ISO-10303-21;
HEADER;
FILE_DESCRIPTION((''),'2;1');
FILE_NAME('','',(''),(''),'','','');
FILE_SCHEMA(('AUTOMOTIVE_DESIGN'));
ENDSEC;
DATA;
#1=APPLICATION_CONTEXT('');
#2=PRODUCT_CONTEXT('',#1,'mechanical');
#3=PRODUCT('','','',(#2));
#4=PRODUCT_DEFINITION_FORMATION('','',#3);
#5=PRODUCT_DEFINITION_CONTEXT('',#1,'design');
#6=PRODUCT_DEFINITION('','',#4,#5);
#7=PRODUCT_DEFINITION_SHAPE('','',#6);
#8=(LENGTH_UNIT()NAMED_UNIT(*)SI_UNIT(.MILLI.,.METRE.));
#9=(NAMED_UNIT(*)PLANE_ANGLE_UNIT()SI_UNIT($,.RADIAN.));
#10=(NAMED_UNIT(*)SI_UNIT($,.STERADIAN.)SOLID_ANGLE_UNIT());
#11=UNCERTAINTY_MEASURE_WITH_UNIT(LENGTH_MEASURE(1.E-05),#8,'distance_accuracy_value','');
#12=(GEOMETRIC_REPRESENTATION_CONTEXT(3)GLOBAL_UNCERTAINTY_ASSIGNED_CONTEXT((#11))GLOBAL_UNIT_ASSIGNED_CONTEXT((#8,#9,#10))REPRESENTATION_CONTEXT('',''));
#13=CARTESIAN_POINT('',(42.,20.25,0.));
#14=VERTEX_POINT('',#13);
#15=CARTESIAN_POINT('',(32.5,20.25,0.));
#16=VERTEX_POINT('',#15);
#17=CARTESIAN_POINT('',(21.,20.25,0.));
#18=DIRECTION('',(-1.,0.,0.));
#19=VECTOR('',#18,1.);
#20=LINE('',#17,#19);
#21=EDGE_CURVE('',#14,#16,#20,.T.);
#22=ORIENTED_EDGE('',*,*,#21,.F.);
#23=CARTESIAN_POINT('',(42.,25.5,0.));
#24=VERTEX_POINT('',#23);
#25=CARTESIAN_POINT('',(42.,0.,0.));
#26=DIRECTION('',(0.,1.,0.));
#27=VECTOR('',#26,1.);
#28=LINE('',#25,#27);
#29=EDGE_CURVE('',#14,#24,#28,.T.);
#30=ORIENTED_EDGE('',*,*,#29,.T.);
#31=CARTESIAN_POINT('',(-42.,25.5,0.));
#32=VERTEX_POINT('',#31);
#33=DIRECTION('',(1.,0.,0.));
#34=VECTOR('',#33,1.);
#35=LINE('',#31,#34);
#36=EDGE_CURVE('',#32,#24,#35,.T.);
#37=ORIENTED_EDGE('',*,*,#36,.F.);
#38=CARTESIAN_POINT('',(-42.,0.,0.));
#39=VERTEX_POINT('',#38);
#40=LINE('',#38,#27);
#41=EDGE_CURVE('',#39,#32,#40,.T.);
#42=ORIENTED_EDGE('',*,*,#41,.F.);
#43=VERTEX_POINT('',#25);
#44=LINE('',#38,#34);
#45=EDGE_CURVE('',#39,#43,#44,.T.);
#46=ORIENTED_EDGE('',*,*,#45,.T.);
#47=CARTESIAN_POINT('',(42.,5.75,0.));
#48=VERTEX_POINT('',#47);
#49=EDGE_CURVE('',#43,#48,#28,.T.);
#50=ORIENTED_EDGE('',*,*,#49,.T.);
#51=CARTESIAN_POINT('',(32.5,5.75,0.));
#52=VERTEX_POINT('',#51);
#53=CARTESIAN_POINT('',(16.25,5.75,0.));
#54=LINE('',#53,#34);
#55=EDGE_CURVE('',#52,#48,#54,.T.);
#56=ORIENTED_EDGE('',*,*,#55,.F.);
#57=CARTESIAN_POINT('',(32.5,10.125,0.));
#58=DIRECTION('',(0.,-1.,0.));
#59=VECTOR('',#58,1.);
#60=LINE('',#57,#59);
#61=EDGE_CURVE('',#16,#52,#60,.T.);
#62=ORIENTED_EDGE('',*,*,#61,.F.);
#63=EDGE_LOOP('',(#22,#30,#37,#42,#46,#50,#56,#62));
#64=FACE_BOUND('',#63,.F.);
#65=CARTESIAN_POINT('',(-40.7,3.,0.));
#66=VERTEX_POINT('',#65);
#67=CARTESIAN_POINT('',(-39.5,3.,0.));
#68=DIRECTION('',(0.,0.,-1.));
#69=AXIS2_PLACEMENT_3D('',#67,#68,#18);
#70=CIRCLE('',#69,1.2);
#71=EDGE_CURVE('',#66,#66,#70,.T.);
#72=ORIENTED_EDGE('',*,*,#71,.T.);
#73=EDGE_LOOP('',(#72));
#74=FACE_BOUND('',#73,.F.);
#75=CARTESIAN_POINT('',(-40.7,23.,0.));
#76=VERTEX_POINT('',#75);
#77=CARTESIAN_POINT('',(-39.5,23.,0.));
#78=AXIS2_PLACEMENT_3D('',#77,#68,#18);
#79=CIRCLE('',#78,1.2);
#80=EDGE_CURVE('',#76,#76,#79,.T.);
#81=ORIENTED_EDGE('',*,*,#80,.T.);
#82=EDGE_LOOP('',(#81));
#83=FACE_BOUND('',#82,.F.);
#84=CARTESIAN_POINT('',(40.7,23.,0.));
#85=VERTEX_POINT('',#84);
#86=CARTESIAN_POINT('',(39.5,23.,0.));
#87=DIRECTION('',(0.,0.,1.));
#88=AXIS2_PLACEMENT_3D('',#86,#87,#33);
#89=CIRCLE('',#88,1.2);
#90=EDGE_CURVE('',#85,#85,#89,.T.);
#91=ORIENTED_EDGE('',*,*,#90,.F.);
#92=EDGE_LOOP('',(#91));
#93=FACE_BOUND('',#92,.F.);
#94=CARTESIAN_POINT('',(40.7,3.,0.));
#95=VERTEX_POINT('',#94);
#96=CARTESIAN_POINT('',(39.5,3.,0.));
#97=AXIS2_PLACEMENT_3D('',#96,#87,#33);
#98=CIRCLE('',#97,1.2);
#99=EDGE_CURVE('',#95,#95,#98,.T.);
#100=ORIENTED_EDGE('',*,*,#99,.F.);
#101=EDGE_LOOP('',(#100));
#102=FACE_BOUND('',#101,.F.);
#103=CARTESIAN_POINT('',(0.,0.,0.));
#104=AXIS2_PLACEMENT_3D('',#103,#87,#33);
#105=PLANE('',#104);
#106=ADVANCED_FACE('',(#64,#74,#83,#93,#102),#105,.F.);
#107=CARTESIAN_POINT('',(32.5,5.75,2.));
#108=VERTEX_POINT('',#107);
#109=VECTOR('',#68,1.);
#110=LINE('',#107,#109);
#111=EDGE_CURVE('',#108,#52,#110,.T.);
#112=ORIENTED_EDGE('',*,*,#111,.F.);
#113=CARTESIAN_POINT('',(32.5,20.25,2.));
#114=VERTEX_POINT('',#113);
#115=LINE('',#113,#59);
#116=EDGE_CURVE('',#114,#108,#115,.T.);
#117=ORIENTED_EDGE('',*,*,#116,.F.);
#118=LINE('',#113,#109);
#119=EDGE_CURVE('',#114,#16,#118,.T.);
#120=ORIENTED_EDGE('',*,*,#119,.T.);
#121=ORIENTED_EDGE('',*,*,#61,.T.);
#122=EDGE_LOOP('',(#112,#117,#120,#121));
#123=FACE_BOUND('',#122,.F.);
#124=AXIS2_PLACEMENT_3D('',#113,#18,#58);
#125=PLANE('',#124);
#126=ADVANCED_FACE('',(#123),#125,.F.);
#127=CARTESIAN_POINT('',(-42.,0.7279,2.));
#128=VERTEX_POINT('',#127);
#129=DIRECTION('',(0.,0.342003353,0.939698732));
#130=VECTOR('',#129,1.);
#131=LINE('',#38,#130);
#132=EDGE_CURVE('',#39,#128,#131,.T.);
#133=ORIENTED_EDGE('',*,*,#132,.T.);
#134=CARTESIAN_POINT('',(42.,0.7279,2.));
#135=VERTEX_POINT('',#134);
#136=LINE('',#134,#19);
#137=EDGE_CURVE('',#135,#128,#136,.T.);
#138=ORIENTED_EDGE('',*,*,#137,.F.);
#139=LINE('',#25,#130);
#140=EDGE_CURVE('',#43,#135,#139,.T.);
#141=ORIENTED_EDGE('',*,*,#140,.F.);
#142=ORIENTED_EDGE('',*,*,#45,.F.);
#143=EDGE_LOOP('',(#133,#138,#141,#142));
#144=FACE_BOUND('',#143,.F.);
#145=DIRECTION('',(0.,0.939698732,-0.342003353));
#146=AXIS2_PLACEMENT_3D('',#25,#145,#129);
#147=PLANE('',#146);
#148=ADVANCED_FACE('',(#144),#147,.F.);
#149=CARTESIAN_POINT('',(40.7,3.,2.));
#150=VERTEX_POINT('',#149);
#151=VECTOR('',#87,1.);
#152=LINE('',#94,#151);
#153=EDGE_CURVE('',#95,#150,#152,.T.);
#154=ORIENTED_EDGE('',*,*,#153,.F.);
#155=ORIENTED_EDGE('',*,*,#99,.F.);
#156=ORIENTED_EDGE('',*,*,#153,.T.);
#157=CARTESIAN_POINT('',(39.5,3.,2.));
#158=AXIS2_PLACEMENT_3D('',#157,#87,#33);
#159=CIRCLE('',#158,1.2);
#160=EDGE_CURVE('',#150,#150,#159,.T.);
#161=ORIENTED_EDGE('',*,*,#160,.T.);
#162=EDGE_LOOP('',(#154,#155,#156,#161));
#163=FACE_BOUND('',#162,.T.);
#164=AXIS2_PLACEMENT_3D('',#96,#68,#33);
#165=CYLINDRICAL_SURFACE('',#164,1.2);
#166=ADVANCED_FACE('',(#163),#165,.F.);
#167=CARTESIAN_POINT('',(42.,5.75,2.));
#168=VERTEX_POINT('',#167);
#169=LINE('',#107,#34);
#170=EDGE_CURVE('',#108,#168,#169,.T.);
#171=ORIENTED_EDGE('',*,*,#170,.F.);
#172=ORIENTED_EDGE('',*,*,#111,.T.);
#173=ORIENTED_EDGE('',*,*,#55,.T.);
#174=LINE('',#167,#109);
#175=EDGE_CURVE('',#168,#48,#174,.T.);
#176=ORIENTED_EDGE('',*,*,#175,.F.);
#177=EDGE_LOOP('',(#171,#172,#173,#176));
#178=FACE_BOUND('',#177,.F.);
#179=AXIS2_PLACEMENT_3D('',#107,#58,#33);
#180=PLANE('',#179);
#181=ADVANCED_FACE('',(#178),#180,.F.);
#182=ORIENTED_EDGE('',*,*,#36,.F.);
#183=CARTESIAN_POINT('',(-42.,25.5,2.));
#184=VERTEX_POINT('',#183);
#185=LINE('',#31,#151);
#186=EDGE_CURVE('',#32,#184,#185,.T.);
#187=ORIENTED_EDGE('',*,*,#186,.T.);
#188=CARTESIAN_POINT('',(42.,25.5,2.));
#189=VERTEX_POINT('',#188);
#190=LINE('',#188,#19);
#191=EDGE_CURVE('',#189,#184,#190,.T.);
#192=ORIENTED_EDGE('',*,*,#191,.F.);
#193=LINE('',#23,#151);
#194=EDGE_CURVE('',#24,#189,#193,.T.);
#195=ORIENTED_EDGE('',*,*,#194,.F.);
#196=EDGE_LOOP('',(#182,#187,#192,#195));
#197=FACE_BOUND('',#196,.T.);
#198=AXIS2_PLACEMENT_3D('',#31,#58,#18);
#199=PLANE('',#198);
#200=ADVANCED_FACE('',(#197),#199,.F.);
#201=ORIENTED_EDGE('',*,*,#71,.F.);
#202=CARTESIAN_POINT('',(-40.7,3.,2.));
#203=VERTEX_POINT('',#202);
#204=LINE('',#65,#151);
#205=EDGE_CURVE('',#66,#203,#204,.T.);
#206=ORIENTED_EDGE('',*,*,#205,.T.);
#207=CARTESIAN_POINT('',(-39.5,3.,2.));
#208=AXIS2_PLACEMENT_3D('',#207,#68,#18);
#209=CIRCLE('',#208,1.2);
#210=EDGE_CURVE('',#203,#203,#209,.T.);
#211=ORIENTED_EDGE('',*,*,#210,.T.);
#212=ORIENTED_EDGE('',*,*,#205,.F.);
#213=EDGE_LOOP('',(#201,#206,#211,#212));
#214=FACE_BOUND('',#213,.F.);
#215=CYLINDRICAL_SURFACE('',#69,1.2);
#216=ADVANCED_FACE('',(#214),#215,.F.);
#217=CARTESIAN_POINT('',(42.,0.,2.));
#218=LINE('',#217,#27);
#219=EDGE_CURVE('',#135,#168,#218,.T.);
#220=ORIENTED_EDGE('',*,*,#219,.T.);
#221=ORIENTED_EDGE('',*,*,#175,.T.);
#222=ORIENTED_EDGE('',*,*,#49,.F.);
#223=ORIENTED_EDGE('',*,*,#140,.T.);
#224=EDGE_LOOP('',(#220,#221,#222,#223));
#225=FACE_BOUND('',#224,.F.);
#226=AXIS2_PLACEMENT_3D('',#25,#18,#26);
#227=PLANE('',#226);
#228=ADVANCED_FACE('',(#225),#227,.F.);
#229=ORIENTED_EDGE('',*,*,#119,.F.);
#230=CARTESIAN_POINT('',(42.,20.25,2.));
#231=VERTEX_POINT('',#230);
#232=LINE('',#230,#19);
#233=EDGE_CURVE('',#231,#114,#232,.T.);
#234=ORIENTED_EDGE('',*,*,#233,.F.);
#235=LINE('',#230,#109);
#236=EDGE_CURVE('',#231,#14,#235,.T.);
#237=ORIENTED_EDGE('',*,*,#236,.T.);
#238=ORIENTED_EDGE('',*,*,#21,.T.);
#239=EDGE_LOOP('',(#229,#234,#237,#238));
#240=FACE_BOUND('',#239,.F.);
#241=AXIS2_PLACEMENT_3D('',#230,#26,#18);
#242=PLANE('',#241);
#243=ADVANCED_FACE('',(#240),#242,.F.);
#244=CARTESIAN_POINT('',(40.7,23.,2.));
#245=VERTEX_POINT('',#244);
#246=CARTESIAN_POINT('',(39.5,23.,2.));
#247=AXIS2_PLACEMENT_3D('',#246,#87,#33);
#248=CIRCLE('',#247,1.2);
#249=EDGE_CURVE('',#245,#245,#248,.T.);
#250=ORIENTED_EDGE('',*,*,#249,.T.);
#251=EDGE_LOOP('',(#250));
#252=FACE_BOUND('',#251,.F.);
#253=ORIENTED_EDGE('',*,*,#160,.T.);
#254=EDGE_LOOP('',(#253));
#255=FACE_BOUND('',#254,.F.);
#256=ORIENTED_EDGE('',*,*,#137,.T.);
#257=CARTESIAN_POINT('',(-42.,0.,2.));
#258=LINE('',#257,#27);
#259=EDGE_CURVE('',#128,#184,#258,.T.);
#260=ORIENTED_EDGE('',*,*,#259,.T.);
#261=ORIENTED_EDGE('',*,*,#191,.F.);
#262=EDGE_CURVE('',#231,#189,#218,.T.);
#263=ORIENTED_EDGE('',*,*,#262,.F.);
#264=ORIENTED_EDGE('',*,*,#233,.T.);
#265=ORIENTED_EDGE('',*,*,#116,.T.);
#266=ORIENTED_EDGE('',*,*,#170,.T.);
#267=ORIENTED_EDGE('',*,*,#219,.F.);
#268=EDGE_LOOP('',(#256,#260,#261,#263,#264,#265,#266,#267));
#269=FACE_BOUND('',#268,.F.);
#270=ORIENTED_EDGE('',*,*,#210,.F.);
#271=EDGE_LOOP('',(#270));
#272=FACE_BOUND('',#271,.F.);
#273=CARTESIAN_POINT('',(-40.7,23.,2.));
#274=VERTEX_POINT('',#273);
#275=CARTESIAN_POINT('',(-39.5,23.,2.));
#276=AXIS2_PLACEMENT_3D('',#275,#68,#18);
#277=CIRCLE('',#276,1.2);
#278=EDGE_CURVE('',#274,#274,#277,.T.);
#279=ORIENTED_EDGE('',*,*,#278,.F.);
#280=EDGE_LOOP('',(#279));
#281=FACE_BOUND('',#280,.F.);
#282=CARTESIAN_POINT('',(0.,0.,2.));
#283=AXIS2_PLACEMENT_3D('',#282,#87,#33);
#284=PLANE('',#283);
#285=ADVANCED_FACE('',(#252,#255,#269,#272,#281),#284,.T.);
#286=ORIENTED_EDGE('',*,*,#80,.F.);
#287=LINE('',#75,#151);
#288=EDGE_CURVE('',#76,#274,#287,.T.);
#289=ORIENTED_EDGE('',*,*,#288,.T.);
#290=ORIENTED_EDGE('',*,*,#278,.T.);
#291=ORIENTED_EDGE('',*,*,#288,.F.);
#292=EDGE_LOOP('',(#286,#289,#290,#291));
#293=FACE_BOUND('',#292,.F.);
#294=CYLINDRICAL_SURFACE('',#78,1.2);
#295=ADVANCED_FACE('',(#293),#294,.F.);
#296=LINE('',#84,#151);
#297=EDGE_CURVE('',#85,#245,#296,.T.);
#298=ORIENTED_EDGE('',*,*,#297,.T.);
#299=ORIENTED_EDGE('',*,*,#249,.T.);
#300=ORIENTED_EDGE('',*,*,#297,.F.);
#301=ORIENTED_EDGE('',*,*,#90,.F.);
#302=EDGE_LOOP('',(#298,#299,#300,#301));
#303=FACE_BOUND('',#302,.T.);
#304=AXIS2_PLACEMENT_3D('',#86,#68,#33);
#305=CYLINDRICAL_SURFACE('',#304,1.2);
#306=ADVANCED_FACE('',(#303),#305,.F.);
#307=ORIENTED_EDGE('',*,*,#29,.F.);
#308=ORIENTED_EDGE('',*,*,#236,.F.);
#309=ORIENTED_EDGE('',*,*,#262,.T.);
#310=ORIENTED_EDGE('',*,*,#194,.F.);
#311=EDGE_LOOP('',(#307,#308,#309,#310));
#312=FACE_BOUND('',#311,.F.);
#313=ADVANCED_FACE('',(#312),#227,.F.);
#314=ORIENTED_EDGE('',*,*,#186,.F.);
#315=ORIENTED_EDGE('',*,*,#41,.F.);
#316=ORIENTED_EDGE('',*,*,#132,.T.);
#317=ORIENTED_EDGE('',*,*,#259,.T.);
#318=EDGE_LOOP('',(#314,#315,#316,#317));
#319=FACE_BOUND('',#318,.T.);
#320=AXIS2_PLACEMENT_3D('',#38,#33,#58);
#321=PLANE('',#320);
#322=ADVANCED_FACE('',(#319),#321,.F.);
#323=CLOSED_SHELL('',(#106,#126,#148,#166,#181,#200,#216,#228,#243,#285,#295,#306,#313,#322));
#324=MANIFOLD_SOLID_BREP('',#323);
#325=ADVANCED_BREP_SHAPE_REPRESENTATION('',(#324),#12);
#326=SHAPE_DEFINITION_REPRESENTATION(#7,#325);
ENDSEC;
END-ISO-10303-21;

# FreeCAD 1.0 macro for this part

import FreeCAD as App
import Part
import Sketcher
Q = App.Units.Quantity

doc = App.newDocument("Part")
params = doc.addObject("Spreadsheet::Sheet", "Params")
for row, (alias, value) in enumerate([
    ("sketch1_diameter", "2.4 mm"),
    ("sketch1_width", "42 mm"),
    ("sketch1_height", "25.5 mm"),
    ("pad1_length", "2 mm"),
    ("sketch2_height", "2 mm"),
    ("pocket1_length", "90 mm"),
    ("sketch3_width", "9.5 mm"),
    ("sketch3_height", "14.5 mm"),
    ("pocket2_length", "10 mm"),
], start=1):
    params.set(f"A{row}", alias)
    params.set(f"B{row}", "=" + value)
    params.setAlias(f"B{row}", alias)

body = doc.addObject("PartDesign::Body", "Body")

sketch1 = body.newObject("Sketcher::SketchObject", "Sketch")
sketch1.AttachmentSupport = (doc.getObject("XY_Plane"), [""])
sketch1.MapMode = "FlatFace"
sketch1.addGeometry([
    Part.LineSegment(App.Vector(0, 25.5, 0), App.Vector(0, 0, 0)),
    Part.LineSegment(App.Vector(0, 0, 0), App.Vector(42, 0, 0)),
    Part.LineSegment(App.Vector(42, 0, 0), App.Vector(42, 25.5, 0)),
    Part.LineSegment(App.Vector(42, 25.5, 0), App.Vector(0, 25.5, 0)),
    Part.Circle(App.Vector(39.5, 3, 0), App.Vector(0, 0, 1), 1.2),
    Part.Circle(App.Vector(39.5, 23, 0), App.Vector(0, 0, 1), 1.2),
], False)
sketch1.addConstraint([
    Sketcher.Constraint("Coincident", 0, 2, 1, 1),
    Sketcher.Constraint("Coincident", 1, 2, 2, 1),
    Sketcher.Constraint("Coincident", 2, 2, 3, 1),
    Sketcher.Constraint("Coincident", 3, 2, 0, 1),
    Sketcher.Constraint("Vertical", 0),
    Sketcher.Constraint("Horizontal", 1),
    Sketcher.Constraint("Vertical", 2),
    Sketcher.Constraint("Horizontal", 3),
    Sketcher.Constraint("Coincident", 0, 2, -1, 1),
    Sketcher.Constraint("Equal", 4, 5),
    Sketcher.Constraint("Vertical", 4, 3, 5, 3),
    Sketcher.Constraint("Diameter", 4, Q("2.4 mm")),
    Sketcher.Constraint("DistanceX", 1, 1, 1, 2, Q("42 mm")),
    Sketcher.Constraint("DistanceY", 0, 2, 0, 1, Q("25.5 mm")),
    Sketcher.Constraint("DistanceY", 4, 3, 5, 3, Q("20 mm")),
    Sketcher.Constraint("DistanceX", 4, 3, 1, 2, Q("2.5 mm")),
    Sketcher.Constraint("DistanceY", 5, 3, 2, 2, Q("2.5 mm")),
])
sketch1.setExpression("Constraints[11]", "Params.sketch1_diameter")
sketch1.setExpression("Constraints[12]", "Params.sketch1_width")
sketch1.setExpression("Constraints[13]", "Params.sketch1_height")
pad1 = body.newObject("PartDesign::Pad", "Pad")
pad1.Profile = sketch1
pad1.setExpression("Length", "Params.pad1_length")

sketch2 = body.newObject("Sketcher::SketchObject", "Sketch001")
sketch2.AttachmentSupport = (doc.getObject("YZ_Plane"), [""])
sketch2.MapMode = "FlatFace"
sketch2.AttachmentOffset = App.Placement(App.Vector(0, 0, 42), App.Rotation())
sketch2.addGeometry([
    Part.LineSegment(App.Vector(0, 2, 0), App.Vector(0, 0, 0)),
    Part.LineSegment(App.Vector(0, 0, 0), App.Vector(0.7, 2, 0)),
    Part.LineSegment(App.Vector(0.7, 2, 0), App.Vector(0, 2, 0)),
], False)
sketch2.addConstraint([
    Sketcher.Constraint("Coincident", 0, 2, 1, 1),
    Sketcher.Constraint("Coincident", 1, 2, 2, 1),
    Sketcher.Constraint("Coincident", 2, 2, 0, 1),
    Sketcher.Constraint("Vertical", 0),
    Sketcher.Constraint("Horizontal", 2),
    Sketcher.Constraint("Coincident", 0, 2, -1, 1),
    Sketcher.Constraint("DistanceY", 0, 2, 0, 1, Q("2 mm")),
    Sketcher.Constraint("Angle", 1, Q("70.001 deg")),
])
sketch2.setExpression("Constraints[6]", "Params.sketch2_height")
pocket1 = body.newObject("PartDesign::Pocket", "Pocket")
pocket1.Profile = sketch2
pocket1.setExpression("Length", "Params.pocket1_length")
doc.recompute()

mirrored = body.newObject("PartDesign::Mirrored", "Mirrored")
mirrored.Originals = [pad1, pocket1]
mirrored.MirrorPlane = (doc.getObject("YZ_Plane"), [""])
body.Tip = mirrored

sketch3 = body.newObject("Sketcher::SketchObject", "Sketch002")
sketch3.AttachmentSupport = (doc.getObject("XY_Plane"), [""])
sketch3.MapMode = "FlatFace"
sketch3.AttachmentOffset = App.Placement(App.Vector(0, 0, 2), App.Rotation())
sketch3.addGeometry([
    Part.LineSegment(App.Vector(32, 6, 0), App.Vector(42, 6, 0)),
    Part.LineSegment(App.Vector(42, 6, 0), App.Vector(42, 20, 0)),
    Part.LineSegment(App.Vector(42, 20, 0), App.Vector(32, 20, 0)),
    Part.LineSegment(App.Vector(32, 20, 0), App.Vector(32, 6, 0)),
], False)
sketch3.addConstraint([
    Sketcher.Constraint("Coincident", 0, 2, 1, 1),
    Sketcher.Constraint("Coincident", 1, 2, 2, 1),
    Sketcher.Constraint("Coincident", 2, 2, 3, 1),
    Sketcher.Constraint("Coincident", 3, 2, 0, 1),
    Sketcher.Constraint("Horizontal", 0),
    Sketcher.Constraint("Vertical", 1),
    Sketcher.Constraint("Horizontal", 2),
    Sketcher.Constraint("Vertical", 3),
    Sketcher.Constraint("DistanceX", 0, 1, 0, 2, Q("9.5 mm")),
    Sketcher.Constraint("DistanceY", 1, 1, 1, 2, Q("14.5 mm")),
    Sketcher.Constraint("DistanceX", -1, 1, 0, 2, Q("42 mm")),
    Sketcher.Constraint("DistanceY", -1, 1, 0, 2, Q("5.75 mm")),
])
sketch3.setExpression("Constraints[8]", "Params.sketch3_width")
sketch3.setExpression("Constraints[9]", "Params.sketch3_height")
pocket2 = body.newObject("PartDesign::Pocket", "Pocket001")
pocket2.Profile = sketch3
pocket2.setExpression("Length", "Params.pocket2_length")

doc.recompute()
